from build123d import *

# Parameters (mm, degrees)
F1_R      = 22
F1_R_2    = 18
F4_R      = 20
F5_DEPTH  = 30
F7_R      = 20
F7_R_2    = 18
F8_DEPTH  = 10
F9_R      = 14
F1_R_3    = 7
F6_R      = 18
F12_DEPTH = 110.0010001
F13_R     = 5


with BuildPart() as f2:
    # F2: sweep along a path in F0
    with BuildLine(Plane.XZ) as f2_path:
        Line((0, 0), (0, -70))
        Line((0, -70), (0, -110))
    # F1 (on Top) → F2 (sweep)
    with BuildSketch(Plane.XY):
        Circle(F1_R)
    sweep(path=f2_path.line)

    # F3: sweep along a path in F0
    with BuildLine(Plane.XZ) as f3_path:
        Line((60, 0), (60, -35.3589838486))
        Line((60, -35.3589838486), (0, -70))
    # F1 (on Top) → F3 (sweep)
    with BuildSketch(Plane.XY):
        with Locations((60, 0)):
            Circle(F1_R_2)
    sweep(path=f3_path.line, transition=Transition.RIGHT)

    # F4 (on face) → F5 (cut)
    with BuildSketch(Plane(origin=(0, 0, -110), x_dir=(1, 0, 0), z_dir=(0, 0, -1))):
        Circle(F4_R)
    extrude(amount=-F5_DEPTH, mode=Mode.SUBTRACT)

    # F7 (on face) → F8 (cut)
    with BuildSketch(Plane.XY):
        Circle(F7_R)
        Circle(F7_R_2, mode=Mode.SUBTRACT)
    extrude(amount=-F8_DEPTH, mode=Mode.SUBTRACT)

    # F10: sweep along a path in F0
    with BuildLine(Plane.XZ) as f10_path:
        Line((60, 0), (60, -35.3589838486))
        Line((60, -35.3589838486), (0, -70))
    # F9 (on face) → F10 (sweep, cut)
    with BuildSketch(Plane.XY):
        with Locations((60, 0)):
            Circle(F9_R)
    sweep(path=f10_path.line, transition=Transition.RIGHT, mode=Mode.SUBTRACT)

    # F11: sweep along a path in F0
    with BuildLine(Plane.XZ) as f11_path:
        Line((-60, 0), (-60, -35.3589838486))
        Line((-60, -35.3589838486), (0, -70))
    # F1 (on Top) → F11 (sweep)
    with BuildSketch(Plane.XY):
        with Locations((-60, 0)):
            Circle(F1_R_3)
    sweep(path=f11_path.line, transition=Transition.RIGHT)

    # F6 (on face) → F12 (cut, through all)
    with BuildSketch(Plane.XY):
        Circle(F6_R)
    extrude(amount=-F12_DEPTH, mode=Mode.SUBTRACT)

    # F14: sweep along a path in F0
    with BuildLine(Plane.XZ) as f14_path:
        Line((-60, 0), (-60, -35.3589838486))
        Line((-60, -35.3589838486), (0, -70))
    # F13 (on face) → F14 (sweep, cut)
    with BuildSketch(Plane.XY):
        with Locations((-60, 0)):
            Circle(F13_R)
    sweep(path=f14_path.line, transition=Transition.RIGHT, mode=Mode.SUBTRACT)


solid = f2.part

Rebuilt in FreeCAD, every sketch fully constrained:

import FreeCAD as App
import Part
import Sketcher
Q = App.Units.Quantity

doc = App.newDocument("Part")
body = doc.addObject("PartDesign::Body", "Body")

# Sketch on XY plane
sketch1 = body.newObject("Sketcher::SketchObject", "Sketch")
sketch1.AttachmentSupport = (doc.getObject("XY_Plane"), [""])
sketch1.MapMode = "FlatFace"
sketch1.addGeometry(Part.Circle(App.Vector(0, 0, 0), App.Vector(0, 0, 1), 22), False)
sketch1.addConstraint([
    Sketcher.Constraint("Coincident", 0, 3, -1, 1),
    Sketcher.Constraint("Diameter", 0, 44.0),
])

# Sketch on XZ plane
sketch2 = body.newObject("Sketcher::SketchObject", "Sketch001")
sketch2.AttachmentSupport = (doc.getObject("XZ_Plane"), [""])
sketch2.MapMode = "FlatFace"
sketch2.addGeometry(Part.LineSegment(App.Vector(0, 0, 0), App.Vector(0, -110, 0)), False)
sketch2.addConstraint([
    Sketcher.Constraint("Vertical", 0),
    Sketcher.Constraint("Coincident", 0, 1, -1, 1),
    Sketcher.Constraint("DistanceY", 0, 2, 0, 1, 110.0),
])
doc.recompute()

additivepipe = body.newObject("PartDesign::AdditivePipe", "AdditivePipe")
additivepipe.Profile = sketch1
additivepipe.Spine = (sketch2, ["Edge1"])

# Sketch on XY plane
sketch3 = body.newObject("Sketcher::SketchObject", "Sketch002")
sketch3.AttachmentSupport = (doc.getObject("XY_Plane"), [""])
sketch3.MapMode = "FlatFace"
sketch3.addGeometry(Part.Circle(App.Vector(60, 0, 0), App.Vector(0, 0, 1), 18), False)
sketch3.addConstraint([
    Sketcher.Constraint("PointOnObject", 0, 3, -1),
    Sketcher.Constraint("Diameter", 0, 36.0),
    Sketcher.Constraint("DistanceX", -1, 1, 0, 3, 60.0),
])

# Sketch on XZ plane
sketch4 = body.newObject("Sketcher::SketchObject", "Sketch003")
sketch4.AttachmentSupport = (doc.getObject("XZ_Plane"), [""])
sketch4.MapMode = "FlatFace"
sketch4.addGeometry([
    Part.LineSegment(App.Vector(60, 0, 0), App.Vector(60, -35.358984, 0)),
    Part.LineSegment(App.Vector(60, -35.358984, 0), App.Vector(0, -70, 0)),
], False)
sketch4.addConstraint([
    Sketcher.Constraint("Coincident", 0, 2, 1, 1),
    Sketcher.Constraint("Vertical", 0),
    Sketcher.Constraint("PointOnObject", 0, 1, -1),
    Sketcher.Constraint("PointOnObject", 1, 2, -2),
    Sketcher.Constraint("Angle", 1, Q("-150 deg")),
    Sketcher.Constraint("DistanceX", -1, 1, 0, 1, 60.0),
    Sketcher.Constraint("DistanceY", 1, 2, -1, 1, 70.0),
])
doc.recompute()

additivepipe2 = body.newObject("PartDesign::AdditivePipe", "AdditivePipe001")
additivepipe2.Profile = sketch3
additivepipe2.Spine = (sketch4, ["Edge1", "Edge2"])
additivepipe2.Transition = "Right corner"

# Sketch on XY plane
sketch5 = body.newObject("Sketcher::SketchObject", "Sketch004")
sketch5.AttachmentSupport = (doc.getObject("XY_Plane"), [""])
sketch5.MapMode = "FlatFace"
sketch5.AttachmentOffset = App.Placement(App.Vector(0, 0, -110), App.Rotation())
sketch5.addGeometry(Part.Circle(App.Vector(0, 0, 0), App.Vector(0, 0, 1), 20), False)
sketch5.addConstraint([
    Sketcher.Constraint("Coincident", 0, 3, -1, 1),
    Sketcher.Constraint("Diameter", 0, 40.0),
])
pocket1 = body.newObject("PartDesign::Pocket", "Pocket")
pocket1.Profile = sketch5
pocket1.Length = 30
pocket1.Reversed = True

# Sketch on XY plane
sketch6 = body.newObject("Sketcher::SketchObject", "Sketch005")
sketch6.AttachmentSupport = (doc.getObject("XY_Plane"), [""])
sketch6.MapMode = "FlatFace"
sketch6.addGeometry([
    Part.Circle(App.Vector(0, 0, 0), App.Vector(0, 0, 1), 20),
    Part.Circle(App.Vector(0, 0, 0), App.Vector(0, 0, 1), 18),
], False)
sketch6.addConstraint([
    Sketcher.Constraint("Coincident", 0, 3, -1, 1),
    Sketcher.Constraint("Coincident", 1, 3, -1, 1),
    Sketcher.Constraint("Diameter", 0, 40.0),
    Sketcher.Constraint("Diameter", 1, 36.0),
])
pocket2 = body.newObject("PartDesign::Pocket", "Pocket001")
pocket2.Profile = sketch6
pocket2.Length = 10

# Sketch on XY plane
sketch7 = body.newObject("Sketcher::SketchObject", "Sketch006")
sketch7.AttachmentSupport = (doc.getObject("XY_Plane"), [""])
sketch7.MapMode = "FlatFace"
sketch7.addGeometry(Part.Circle(App.Vector(60, 0, 0), App.Vector(0, 0, 1), 14), False)
sketch7.addConstraint([
    Sketcher.Constraint("PointOnObject", 0, 3, -1),
    Sketcher.Constraint("Diameter", 0, 28.0),
    Sketcher.Constraint("DistanceX", -1, 1, 0, 3, 60.0),
])

# Sketch on XZ plane
sketch8 = body.newObject("Sketcher::SketchObject", "Sketch007")
sketch8.AttachmentSupport = (doc.getObject("XZ_Plane"), [""])
sketch8.MapMode = "FlatFace"
sketch8.addGeometry([
    Part.LineSegment(App.Vector(60, 0, 0), App.Vector(60, -35.358984, 0)),
    Part.LineSegment(App.Vector(60, -35.358984, 0), App.Vector(0, -70, 0)),
], False)
sketch8.addConstraint([
    Sketcher.Constraint("Coincident", 0, 2, 1, 1),
    Sketcher.Constraint("Vertical", 0),
    Sketcher.Constraint("PointOnObject", 0, 1, -1),
    Sketcher.Constraint("PointOnObject", 1, 2, -2),
    Sketcher.Constraint("Angle", 1, Q("-150 deg")),
    Sketcher.Constraint("DistanceX", -1, 1, 0, 1, 60.0),
    Sketcher.Constraint("DistanceY", 1, 2, -1, 1, 70.0),
])
doc.recompute()

subtractivepipe = body.newObject("PartDesign::SubtractivePipe", "SubtractivePipe")
subtractivepipe.Profile = sketch7
subtractivepipe.Spine = (sketch8, ["Edge1", "Edge2"])
subtractivepipe.Transition = "Right corner"

# Sketch on XY plane
sketch9 = body.newObject("Sketcher::SketchObject", "Sketch008")
sketch9.AttachmentSupport = (doc.getObject("XY_Plane"), [""])
sketch9.MapMode = "FlatFace"
sketch9.addGeometry(Part.Circle(App.Vector(-60, 0, 0), App.Vector(0, 0, 1), 7), False)
sketch9.addConstraint([
    Sketcher.Constraint("PointOnObject", 0, 3, -1),
    Sketcher.Constraint("Diameter", 0, 14.0),
    Sketcher.Constraint("DistanceX", 0, 3, -1, 1, 60.0),
])

# Sketch on XZ plane
sketch10 = body.newObject("Sketcher::SketchObject", "Sketch009")
sketch10.AttachmentSupport = (doc.getObject("XZ_Plane"), [""])
sketch10.MapMode = "FlatFace"
sketch10.addGeometry([
    Part.LineSegment(App.Vector(-60, 0, 0), App.Vector(-60, -35.358984, 0)),
    Part.LineSegment(App.Vector(-60, -35.358984, 0), App.Vector(0, -70, 0)),
], False)
sketch10.addConstraint([
    Sketcher.Constraint("Coincident", 0, 2, 1, 1),
    Sketcher.Constraint("Vertical", 0),
    Sketcher.Constraint("PointOnObject", 0, 1, -1),
    Sketcher.Constraint("PointOnObject", 1, 2, -2),
    Sketcher.Constraint("Angle", 1, Q("-30 deg")),
    Sketcher.Constraint("DistanceX", 0, 1, -1, 1, 60.0),
    Sketcher.Constraint("DistanceY", 1, 2, -1, 1, 70.0),
])
doc.recompute()

additivepipe3 = body.newObject("PartDesign::AdditivePipe", "AdditivePipe002")
additivepipe3.Profile = sketch9
additivepipe3.Spine = (sketch10, ["Edge1", "Edge2"])
additivepipe3.Transition = "Right corner"

# Sketch on XY plane
sketch11 = body.newObject("Sketcher::SketchObject", "Sketch010")
sketch11.AttachmentSupport = (doc.getObject("XY_Plane"), [""])
sketch11.MapMode = "FlatFace"
sketch11.addGeometry(Part.Circle(App.Vector(0, 0, 0), App.Vector(0, 0, 1), 18), False)
sketch11.addConstraint([
    Sketcher.Constraint("Coincident", 0, 3, -1, 1),
    Sketcher.Constraint("Diameter", 0, 36.0),
])
pocket3 = body.newObject("PartDesign::Pocket", "Pocket002")
pocket3.Profile = sketch11
pocket3.Type = "ThroughAll"

# Sketch on XY plane
sketch12 = body.newObject("Sketcher::SketchObject", "Sketch011")
sketch12.AttachmentSupport = (doc.getObject("XY_Plane"), [""])
sketch12.MapMode = "FlatFace"
sketch12.addGeometry(Part.Circle(App.Vector(-60, 0, 0), App.Vector(0, 0, 1), 5), False)
sketch12.addConstraint([
    Sketcher.Constraint("PointOnObject", 0, 3, -1),
    Sketcher.Constraint("Diameter", 0, 10.0),
    Sketcher.Constraint("DistanceX", 0, 3, -1, 1, 60.0),
])

# Sketch on XZ plane
sketch13 = body.newObject("Sketcher::SketchObject", "Sketch012")
sketch13.AttachmentSupport = (doc.getObject("XZ_Plane"), [""])
sketch13.MapMode = "FlatFace"
sketch13.addGeometry([
    Part.LineSegment(App.Vector(-60, 0, 0), App.Vector(-60, -35.358984, 0)),
    Part.LineSegment(App.Vector(-60, -35.358984, 0), App.Vector(0, -70, 0)),
], False)
sketch13.addConstraint([
    Sketcher.Constraint("Coincident", 0, 2, 1, 1),
    Sketcher.Constraint("Vertical", 0),
    Sketcher.Constraint("PointOnObject", 0, 1, -1),
    Sketcher.Constraint("PointOnObject", 1, 2, -2),
    Sketcher.Constraint("Angle", 1, Q("-30 deg")),
    Sketcher.Constraint("DistanceX", 0, 1, -1, 1, 60.0),
    Sketcher.Constraint("DistanceY", 1, 2, -1, 1, 70.0),
])
doc.recompute()

subtractivepipe2 = body.newObject("PartDesign::SubtractivePipe", "SubtractivePipe001")
subtractivepipe2.Profile = sketch12
subtractivepipe2.Spine = (sketch13, ["Edge1", "Edge2"])
subtractivepipe2.Transition = "Right corner"

doc.recompute()
